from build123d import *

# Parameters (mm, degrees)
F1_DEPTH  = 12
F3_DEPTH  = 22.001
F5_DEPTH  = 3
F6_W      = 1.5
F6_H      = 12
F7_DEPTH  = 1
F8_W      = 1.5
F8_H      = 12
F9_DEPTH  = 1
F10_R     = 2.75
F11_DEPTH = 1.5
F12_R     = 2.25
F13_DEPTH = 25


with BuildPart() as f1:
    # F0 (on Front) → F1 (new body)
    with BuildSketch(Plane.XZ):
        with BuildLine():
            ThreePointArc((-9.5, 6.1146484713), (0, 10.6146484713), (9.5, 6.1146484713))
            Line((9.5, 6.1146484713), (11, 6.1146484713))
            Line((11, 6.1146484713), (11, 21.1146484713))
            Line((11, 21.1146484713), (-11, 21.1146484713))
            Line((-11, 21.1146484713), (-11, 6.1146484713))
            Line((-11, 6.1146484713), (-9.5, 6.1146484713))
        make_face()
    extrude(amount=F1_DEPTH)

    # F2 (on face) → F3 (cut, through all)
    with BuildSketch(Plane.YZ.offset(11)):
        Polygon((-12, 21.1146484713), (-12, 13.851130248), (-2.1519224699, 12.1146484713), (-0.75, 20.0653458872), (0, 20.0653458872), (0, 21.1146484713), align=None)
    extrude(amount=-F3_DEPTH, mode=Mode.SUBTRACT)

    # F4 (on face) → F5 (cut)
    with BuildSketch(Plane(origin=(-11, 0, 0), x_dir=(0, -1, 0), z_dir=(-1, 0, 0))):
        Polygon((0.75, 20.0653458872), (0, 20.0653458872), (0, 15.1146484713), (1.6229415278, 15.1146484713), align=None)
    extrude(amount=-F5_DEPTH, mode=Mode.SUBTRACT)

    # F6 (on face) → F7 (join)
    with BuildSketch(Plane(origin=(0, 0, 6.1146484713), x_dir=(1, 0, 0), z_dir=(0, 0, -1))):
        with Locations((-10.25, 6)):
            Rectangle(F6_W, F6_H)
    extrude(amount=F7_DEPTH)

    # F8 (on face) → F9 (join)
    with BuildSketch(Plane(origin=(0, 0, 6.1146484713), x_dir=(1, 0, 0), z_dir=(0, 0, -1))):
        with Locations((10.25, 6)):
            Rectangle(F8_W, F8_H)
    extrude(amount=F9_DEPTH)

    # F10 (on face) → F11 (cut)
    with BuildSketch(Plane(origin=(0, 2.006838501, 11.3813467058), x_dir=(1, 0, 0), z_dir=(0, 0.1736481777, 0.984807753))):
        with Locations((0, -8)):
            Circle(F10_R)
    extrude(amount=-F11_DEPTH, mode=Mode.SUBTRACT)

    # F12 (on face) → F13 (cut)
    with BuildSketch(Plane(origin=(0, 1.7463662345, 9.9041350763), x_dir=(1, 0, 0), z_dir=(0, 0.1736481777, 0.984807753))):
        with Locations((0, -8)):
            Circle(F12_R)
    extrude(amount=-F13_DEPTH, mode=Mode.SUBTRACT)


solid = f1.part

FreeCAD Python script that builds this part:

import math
import FreeCAD as App
import Part
import Sketcher
from FreeCAD import Vector
Q = App.Units.Quantity

doc = App.newDocument("Part")
body = doc.addObject("PartDesign::Body", "Body")

# Sketch on XZ plane
sketch1 = body.newObject("Sketcher::SketchObject", "Sketch")
sketch1.AttachmentSupport = (doc.getObject("XZ_Plane"), [""])
sketch1.MapMode = "FlatFace"
sketch1.addGeometry([
    Part.ArcOfCircle(Part.Circle(Vector(0, -1.7, 0), Vector(0, 0, 1), 12.3), math.radians(39), math.radians(141)),  # 0
    Part.LineSegment(Vector(9.5, 6.1, 0), Vector(11, 6.1, 0)),  # 1
    Part.LineSegment(Vector(11, 6.1, 0), Vector(11, 21.1, 0)),  # 2
    Part.LineSegment(Vector(11, 21.1, 0), Vector(-11, 21.1, 0)),  # 3
    Part.LineSegment(Vector(-11, 21.1, 0), Vector(-11, 6.1, 0)),  # 4
    Part.LineSegment(Vector(-11, 6.1, 0), Vector(-9.5, 6.1, 0)),  # 5
], False)
sketch1.addConstraint([
    Sketcher.Constraint("Coincident", 0, 1, 1, 1),
    Sketcher.Constraint("Coincident", 1, 2, 2, 1),
    Sketcher.Constraint("Coincident", 2, 2, 3, 1),
    Sketcher.Constraint("Coincident", 3, 2, 4, 1),
    Sketcher.Constraint("Coincident", 4, 2, 5, 1),
    Sketcher.Constraint("Coincident", 5, 2, 0, 2),
    Sketcher.Constraint("Horizontal", 1),
    Sketcher.Constraint("Vertical", 2),
    Sketcher.Constraint("Horizontal", 3),
    Sketcher.Constraint("Vertical", 4),
    Sketcher.Constraint("Horizontal", 5),
    Sketcher.Constraint("Symmetric", 1, 2, 4, 2, -2),
    Sketcher.Constraint("PointOnObject", 0, 3, -2),
    Sketcher.Constraint("DistanceX", 3, 2, 3, 1, 22.0),
    Sketcher.Constraint("DistanceY", 2, 1, 2, 2, 15.0),
    Sketcher.Constraint("DistanceX", 1, 1, 1, 2, 1.5),
    Sketcher.Constraint("Radius", 0, 12.277778),
    Sketcher.Constraint("DistanceY", 0, 3, -1, 1, 1.663129),
])
pad1 = body.newObject("PartDesign::Pad", "Pad")
pad1.Profile = sketch1
pad1.Length = 12

# Sketch on YZ plane
sketch2 = body.newObject("Sketcher::SketchObject", "Sketch001")
sketch2.AttachmentSupport = (doc.getObject("YZ_Plane"), [""])
sketch2.MapMode = "FlatFace"
sketch2.AttachmentOffset = App.Placement(Vector(0, 0, 11), App.Rotation())
sketch2.addGeometry([
    Part.LineSegment(Vector(-12, 21.1, 0), Vector(-12, 13.9, 0)),  # 0
    Part.LineSegment(Vector(-12, 13.9, 0), Vector(-2.2, 12.1, 0)),  # 1
    Part.LineSegment(Vector(-2.2, 12.1, 0), Vector(-0.8, 20.1, 0)),  # 2
    Part.LineSegment(Vector(-0.8, 20.1, 0), Vector(0, 20.1, 0)),  # 3
    Part.LineSegment(Vector(0, 20.1, 0), Vector(0, 21.1, 0)),  # 4
    Part.LineSegment(Vector(0, 21.1, 0), Vector(-12, 21.1, 0)),  # 5
], False)
sketch2.addConstraint([
    Sketcher.Constraint("Coincident", 0, 2, 1, 1),
    Sketcher.Constraint("Coincident", 1, 2, 2, 1),
    Sketcher.Constraint("Coincident", 2, 2, 3, 1),
    Sketcher.Constraint("Coincident", 3, 2, 4, 1),
    Sketcher.Constraint("Coincident", 4, 2, 5, 1),
    Sketcher.Constraint("Coincident", 5, 2, 0, 1),
    Sketcher.Constraint("Vertical", 0),
    Sketcher.Constraint("Horizontal", 3),
    Sketcher.Constraint("Vertical", 4),
    Sketcher.Constraint("Horizontal", 5),
    Sketcher.Constraint("PointOnObject", 3, 2, -2),
    Sketcher.Constraint("Perpendicular", 1, 2),
    Sketcher.Constraint("DistanceX", 5, 2, 5, 1, 12.0),
    Sketcher.Constraint("Angle", 1, Q("-10 deg")),
    Sketcher.Constraint("Distance", 1, 10.0),
    Sketcher.Constraint("DistanceY", 1, 2, 4, 2, 9.0),
    Sketcher.Constraint("DistanceX", 3, 1, 3, 2, 0.75),
    Sketcher.Constraint("DistanceY", -1, 1, 0, 2, 13.85113),
])
pocket1 = body.newObject("PartDesign::Pocket", "Pocket")
pocket1.Profile = sketch2
pocket1.Type = "ThroughAll"

# Sketch on YZ plane
sketch3 = body.newObject("Sketcher::SketchObject", "Sketch002")
sketch3.AttachmentSupport = (doc.getObject("YZ_Plane"), [""])
sketch3.MapMode = "FlatFace"
sketch3.AttachmentOffset = App.Placement(Vector(0, 0, -11), App.Rotation())
sketch3.addGeometry([
    Part.LineSegment(Vector(-0.8, 20.1, 0), Vector(0, 20.1, 0)),
    Part.LineSegment(Vector(0, 20.1, 0), Vector(0, 15.1, 0)),
    Part.LineSegment(Vector(0, 15.1, 0), Vector(-1.6, 15.1, 0)),
    Part.LineSegment(Vector(-1.6, 15.1, 0), Vector(-0.8, 20.1, 0)),
], False)
sketch3.addConstraint([
    Sketcher.Constraint("Coincident", 0, 2, 1, 1),
    Sketcher.Constraint("Coincident", 1, 2, 2, 1),
    Sketcher.Constraint("Coincident", 2, 2, 3, 1),
    Sketcher.Constraint("Coincident", 3, 2, 0, 1),
    Sketcher.Constraint("Horizontal", 0),
    Sketcher.Constraint("Vertical", 1),
    Sketcher.Constraint("Horizontal", 2),
    Sketcher.Constraint("PointOnObject", 0, 2, -2),
    Sketcher.Constraint("Angle", 3, Q("80 deg")),
    Sketcher.Constraint("DistanceX", 0, 1, 0, 2, 0.75),
    Sketcher.Constraint("DistanceX", 2, 2, 2, 1, 1.622942),
    Sketcher.Constraint("DistanceY", -1, 1, 1, 2, 15.114648),
])
pocket2 = body.newObject("PartDesign::Pocket", "Pocket001")
pocket2.Profile = sketch3
pocket2.Length = 3
pocket2.Reversed = True

# Sketch on XY plane
sketch4 = body.newObject("Sketcher::SketchObject", "Sketch003")
sketch4.AttachmentSupport = (doc.getObject("XY_Plane"), [""])
sketch4.MapMode = "FlatFace"
sketch4.AttachmentOffset = App.Placement(Vector(0, 0, 6.114648), App.Rotation())
sketch4.addGeometry([
    Part.LineSegment(Vector(-11, -12, 0), Vector(-11, 0, 0)),
    Part.LineSegment(Vector(-11, 0, 0), Vector(-9.5, 0, 0)),
    Part.LineSegment(Vector(-9.5, 0, 0), Vector(-9.5, -12, 0)),
    Part.LineSegment(Vector(-9.5, -12, 0), Vector(-11, -12, 0)),
], False)
sketch4.addConstraint([
    Sketcher.Constraint("Coincident", 0, 2, 1, 1),
    Sketcher.Constraint("Coincident", 1, 2, 2, 1),
    Sketcher.Constraint("Coincident", 2, 2, 3, 1),
    Sketcher.Constraint("Coincident", 3, 2, 0, 1),
    Sketcher.Constraint("Vertical", 0),
    Sketcher.Constraint("Horizontal", 1),
    Sketcher.Constraint("Vertical", 2),
    Sketcher.Constraint("Horizontal", 3),
    Sketcher.Constraint("PointOnObject", 0, 2, -1),
    Sketcher.Constraint("DistanceY", 0, 1, 0, 2, 12.0),
    Sketcher.Constraint("DistanceX", 1, 1, 1, 2, 1.5),
    Sketcher.Constraint("DistanceX", 0, 2, -1, 1, 11.0),
])
pad2 = body.newObject("PartDesign::Pad", "Pad001")
pad2.Profile = sketch4
pad2.Length = 1
pad2.Reversed = True

# Sketch on XY plane
sketch5 = body.newObject("Sketcher::SketchObject", "Sketch004")
sketch5.AttachmentSupport = (doc.getObject("XY_Plane"), [""])
sketch5.MapMode = "FlatFace"
sketch5.AttachmentOffset = App.Placement(Vector(0, 0, 6.114648), App.Rotation())
sketch5.addGeometry([
    Part.LineSegment(Vector(9.5, -12, 0), Vector(9.5, 0, 0)),
    Part.LineSegment(Vector(9.5, 0, 0), Vector(11, 0, 0)),
    Part.LineSegment(Vector(11, 0, 0), Vector(11, -12, 0)),
    Part.LineSegment(Vector(11, -12, 0), Vector(9.5, -12, 0)),
], False)
sketch5.addConstraint([
    Sketcher.Constraint("Coincident", 0, 2, 1, 1),
    Sketcher.Constraint("Coincident", 1, 2, 2, 1),
    Sketcher.Constraint("Coincident", 2, 2, 3, 1),
    Sketcher.Constraint("Coincident", 3, 2, 0, 1),
    Sketcher.Constraint("Vertical", 0),
    Sketcher.Constraint("Horizontal", 1),
    Sketcher.Constraint("Vertical", 2),
    Sketcher.Constraint("Horizontal", 3),
    Sketcher.Constraint("PointOnObject", 0, 2, -1),
    Sketcher.Constraint("DistanceY", 0, 1, 0, 2, 12.0),
    Sketcher.Constraint("DistanceX", 1, 1, 1, 2, 1.5),
    Sketcher.Constraint("DistanceX", -1, 1, 1, 2, 11.0),
])
pad3 = body.newObject("PartDesign::Pad", "Pad002")
pad3.Profile = sketch5
pad3.Length = 1
pad3.Reversed = True

# Sketch on an angled plane
sketch6 = body.newObject("Sketcher::SketchObject", "Sketch005")
sketch6.Placement = App.Placement(Vector(0, 2.006839, 11.381347), App.Rotation(Vector(1, 0, 0), Vector(0, 0.984807753, -0.173648178), Vector(0, 0.173648178, 0.984807753), "ZXY"))
sketch6.addGeometry(Part.Circle(Vector(0, -8, 0), Vector(0, 0, 1), 2.8), False)
sketch6.addConstraint([
    Sketcher.Constraint("PointOnObject", 0, 3, -2),
    Sketcher.Constraint("Diameter", 0, 5.5),
    Sketcher.Constraint("DistanceY", 0, 3, -1, 1, 8.0),
])
pocket3 = body.newObject("PartDesign::Pocket", "Pocket002")
pocket3.Profile = sketch6
pocket3.Length = 1.5

# Sketch on an angled plane
sketch7 = body.newObject("Sketcher::SketchObject", "Sketch006")
sketch7.Placement = App.Placement(Vector(0, 1.746366, 9.904135), App.Rotation(Vector(1, 0, 0), Vector(0, 0.984807753, -0.173648178), Vector(0, 0.173648178, 0.984807753), "ZXY"))
sketch7.addGeometry(Part.Circle(Vector(0, -8, 0), Vector(0, 0, 1), 2.2), False)
sketch7.addConstraint([
    Sketcher.Constraint("PointOnObject", 0, 3, -2),
    Sketcher.Constraint("Diameter", 0, 4.5),
    Sketcher.Constraint("DistanceY", 0, 3, -1, 1, 8.0),
])
pocket4 = body.newObject("PartDesign::Pocket", "Pocket003")
pocket4.Profile = sketch7
pocket4.Length = 25

doc.recompute()
